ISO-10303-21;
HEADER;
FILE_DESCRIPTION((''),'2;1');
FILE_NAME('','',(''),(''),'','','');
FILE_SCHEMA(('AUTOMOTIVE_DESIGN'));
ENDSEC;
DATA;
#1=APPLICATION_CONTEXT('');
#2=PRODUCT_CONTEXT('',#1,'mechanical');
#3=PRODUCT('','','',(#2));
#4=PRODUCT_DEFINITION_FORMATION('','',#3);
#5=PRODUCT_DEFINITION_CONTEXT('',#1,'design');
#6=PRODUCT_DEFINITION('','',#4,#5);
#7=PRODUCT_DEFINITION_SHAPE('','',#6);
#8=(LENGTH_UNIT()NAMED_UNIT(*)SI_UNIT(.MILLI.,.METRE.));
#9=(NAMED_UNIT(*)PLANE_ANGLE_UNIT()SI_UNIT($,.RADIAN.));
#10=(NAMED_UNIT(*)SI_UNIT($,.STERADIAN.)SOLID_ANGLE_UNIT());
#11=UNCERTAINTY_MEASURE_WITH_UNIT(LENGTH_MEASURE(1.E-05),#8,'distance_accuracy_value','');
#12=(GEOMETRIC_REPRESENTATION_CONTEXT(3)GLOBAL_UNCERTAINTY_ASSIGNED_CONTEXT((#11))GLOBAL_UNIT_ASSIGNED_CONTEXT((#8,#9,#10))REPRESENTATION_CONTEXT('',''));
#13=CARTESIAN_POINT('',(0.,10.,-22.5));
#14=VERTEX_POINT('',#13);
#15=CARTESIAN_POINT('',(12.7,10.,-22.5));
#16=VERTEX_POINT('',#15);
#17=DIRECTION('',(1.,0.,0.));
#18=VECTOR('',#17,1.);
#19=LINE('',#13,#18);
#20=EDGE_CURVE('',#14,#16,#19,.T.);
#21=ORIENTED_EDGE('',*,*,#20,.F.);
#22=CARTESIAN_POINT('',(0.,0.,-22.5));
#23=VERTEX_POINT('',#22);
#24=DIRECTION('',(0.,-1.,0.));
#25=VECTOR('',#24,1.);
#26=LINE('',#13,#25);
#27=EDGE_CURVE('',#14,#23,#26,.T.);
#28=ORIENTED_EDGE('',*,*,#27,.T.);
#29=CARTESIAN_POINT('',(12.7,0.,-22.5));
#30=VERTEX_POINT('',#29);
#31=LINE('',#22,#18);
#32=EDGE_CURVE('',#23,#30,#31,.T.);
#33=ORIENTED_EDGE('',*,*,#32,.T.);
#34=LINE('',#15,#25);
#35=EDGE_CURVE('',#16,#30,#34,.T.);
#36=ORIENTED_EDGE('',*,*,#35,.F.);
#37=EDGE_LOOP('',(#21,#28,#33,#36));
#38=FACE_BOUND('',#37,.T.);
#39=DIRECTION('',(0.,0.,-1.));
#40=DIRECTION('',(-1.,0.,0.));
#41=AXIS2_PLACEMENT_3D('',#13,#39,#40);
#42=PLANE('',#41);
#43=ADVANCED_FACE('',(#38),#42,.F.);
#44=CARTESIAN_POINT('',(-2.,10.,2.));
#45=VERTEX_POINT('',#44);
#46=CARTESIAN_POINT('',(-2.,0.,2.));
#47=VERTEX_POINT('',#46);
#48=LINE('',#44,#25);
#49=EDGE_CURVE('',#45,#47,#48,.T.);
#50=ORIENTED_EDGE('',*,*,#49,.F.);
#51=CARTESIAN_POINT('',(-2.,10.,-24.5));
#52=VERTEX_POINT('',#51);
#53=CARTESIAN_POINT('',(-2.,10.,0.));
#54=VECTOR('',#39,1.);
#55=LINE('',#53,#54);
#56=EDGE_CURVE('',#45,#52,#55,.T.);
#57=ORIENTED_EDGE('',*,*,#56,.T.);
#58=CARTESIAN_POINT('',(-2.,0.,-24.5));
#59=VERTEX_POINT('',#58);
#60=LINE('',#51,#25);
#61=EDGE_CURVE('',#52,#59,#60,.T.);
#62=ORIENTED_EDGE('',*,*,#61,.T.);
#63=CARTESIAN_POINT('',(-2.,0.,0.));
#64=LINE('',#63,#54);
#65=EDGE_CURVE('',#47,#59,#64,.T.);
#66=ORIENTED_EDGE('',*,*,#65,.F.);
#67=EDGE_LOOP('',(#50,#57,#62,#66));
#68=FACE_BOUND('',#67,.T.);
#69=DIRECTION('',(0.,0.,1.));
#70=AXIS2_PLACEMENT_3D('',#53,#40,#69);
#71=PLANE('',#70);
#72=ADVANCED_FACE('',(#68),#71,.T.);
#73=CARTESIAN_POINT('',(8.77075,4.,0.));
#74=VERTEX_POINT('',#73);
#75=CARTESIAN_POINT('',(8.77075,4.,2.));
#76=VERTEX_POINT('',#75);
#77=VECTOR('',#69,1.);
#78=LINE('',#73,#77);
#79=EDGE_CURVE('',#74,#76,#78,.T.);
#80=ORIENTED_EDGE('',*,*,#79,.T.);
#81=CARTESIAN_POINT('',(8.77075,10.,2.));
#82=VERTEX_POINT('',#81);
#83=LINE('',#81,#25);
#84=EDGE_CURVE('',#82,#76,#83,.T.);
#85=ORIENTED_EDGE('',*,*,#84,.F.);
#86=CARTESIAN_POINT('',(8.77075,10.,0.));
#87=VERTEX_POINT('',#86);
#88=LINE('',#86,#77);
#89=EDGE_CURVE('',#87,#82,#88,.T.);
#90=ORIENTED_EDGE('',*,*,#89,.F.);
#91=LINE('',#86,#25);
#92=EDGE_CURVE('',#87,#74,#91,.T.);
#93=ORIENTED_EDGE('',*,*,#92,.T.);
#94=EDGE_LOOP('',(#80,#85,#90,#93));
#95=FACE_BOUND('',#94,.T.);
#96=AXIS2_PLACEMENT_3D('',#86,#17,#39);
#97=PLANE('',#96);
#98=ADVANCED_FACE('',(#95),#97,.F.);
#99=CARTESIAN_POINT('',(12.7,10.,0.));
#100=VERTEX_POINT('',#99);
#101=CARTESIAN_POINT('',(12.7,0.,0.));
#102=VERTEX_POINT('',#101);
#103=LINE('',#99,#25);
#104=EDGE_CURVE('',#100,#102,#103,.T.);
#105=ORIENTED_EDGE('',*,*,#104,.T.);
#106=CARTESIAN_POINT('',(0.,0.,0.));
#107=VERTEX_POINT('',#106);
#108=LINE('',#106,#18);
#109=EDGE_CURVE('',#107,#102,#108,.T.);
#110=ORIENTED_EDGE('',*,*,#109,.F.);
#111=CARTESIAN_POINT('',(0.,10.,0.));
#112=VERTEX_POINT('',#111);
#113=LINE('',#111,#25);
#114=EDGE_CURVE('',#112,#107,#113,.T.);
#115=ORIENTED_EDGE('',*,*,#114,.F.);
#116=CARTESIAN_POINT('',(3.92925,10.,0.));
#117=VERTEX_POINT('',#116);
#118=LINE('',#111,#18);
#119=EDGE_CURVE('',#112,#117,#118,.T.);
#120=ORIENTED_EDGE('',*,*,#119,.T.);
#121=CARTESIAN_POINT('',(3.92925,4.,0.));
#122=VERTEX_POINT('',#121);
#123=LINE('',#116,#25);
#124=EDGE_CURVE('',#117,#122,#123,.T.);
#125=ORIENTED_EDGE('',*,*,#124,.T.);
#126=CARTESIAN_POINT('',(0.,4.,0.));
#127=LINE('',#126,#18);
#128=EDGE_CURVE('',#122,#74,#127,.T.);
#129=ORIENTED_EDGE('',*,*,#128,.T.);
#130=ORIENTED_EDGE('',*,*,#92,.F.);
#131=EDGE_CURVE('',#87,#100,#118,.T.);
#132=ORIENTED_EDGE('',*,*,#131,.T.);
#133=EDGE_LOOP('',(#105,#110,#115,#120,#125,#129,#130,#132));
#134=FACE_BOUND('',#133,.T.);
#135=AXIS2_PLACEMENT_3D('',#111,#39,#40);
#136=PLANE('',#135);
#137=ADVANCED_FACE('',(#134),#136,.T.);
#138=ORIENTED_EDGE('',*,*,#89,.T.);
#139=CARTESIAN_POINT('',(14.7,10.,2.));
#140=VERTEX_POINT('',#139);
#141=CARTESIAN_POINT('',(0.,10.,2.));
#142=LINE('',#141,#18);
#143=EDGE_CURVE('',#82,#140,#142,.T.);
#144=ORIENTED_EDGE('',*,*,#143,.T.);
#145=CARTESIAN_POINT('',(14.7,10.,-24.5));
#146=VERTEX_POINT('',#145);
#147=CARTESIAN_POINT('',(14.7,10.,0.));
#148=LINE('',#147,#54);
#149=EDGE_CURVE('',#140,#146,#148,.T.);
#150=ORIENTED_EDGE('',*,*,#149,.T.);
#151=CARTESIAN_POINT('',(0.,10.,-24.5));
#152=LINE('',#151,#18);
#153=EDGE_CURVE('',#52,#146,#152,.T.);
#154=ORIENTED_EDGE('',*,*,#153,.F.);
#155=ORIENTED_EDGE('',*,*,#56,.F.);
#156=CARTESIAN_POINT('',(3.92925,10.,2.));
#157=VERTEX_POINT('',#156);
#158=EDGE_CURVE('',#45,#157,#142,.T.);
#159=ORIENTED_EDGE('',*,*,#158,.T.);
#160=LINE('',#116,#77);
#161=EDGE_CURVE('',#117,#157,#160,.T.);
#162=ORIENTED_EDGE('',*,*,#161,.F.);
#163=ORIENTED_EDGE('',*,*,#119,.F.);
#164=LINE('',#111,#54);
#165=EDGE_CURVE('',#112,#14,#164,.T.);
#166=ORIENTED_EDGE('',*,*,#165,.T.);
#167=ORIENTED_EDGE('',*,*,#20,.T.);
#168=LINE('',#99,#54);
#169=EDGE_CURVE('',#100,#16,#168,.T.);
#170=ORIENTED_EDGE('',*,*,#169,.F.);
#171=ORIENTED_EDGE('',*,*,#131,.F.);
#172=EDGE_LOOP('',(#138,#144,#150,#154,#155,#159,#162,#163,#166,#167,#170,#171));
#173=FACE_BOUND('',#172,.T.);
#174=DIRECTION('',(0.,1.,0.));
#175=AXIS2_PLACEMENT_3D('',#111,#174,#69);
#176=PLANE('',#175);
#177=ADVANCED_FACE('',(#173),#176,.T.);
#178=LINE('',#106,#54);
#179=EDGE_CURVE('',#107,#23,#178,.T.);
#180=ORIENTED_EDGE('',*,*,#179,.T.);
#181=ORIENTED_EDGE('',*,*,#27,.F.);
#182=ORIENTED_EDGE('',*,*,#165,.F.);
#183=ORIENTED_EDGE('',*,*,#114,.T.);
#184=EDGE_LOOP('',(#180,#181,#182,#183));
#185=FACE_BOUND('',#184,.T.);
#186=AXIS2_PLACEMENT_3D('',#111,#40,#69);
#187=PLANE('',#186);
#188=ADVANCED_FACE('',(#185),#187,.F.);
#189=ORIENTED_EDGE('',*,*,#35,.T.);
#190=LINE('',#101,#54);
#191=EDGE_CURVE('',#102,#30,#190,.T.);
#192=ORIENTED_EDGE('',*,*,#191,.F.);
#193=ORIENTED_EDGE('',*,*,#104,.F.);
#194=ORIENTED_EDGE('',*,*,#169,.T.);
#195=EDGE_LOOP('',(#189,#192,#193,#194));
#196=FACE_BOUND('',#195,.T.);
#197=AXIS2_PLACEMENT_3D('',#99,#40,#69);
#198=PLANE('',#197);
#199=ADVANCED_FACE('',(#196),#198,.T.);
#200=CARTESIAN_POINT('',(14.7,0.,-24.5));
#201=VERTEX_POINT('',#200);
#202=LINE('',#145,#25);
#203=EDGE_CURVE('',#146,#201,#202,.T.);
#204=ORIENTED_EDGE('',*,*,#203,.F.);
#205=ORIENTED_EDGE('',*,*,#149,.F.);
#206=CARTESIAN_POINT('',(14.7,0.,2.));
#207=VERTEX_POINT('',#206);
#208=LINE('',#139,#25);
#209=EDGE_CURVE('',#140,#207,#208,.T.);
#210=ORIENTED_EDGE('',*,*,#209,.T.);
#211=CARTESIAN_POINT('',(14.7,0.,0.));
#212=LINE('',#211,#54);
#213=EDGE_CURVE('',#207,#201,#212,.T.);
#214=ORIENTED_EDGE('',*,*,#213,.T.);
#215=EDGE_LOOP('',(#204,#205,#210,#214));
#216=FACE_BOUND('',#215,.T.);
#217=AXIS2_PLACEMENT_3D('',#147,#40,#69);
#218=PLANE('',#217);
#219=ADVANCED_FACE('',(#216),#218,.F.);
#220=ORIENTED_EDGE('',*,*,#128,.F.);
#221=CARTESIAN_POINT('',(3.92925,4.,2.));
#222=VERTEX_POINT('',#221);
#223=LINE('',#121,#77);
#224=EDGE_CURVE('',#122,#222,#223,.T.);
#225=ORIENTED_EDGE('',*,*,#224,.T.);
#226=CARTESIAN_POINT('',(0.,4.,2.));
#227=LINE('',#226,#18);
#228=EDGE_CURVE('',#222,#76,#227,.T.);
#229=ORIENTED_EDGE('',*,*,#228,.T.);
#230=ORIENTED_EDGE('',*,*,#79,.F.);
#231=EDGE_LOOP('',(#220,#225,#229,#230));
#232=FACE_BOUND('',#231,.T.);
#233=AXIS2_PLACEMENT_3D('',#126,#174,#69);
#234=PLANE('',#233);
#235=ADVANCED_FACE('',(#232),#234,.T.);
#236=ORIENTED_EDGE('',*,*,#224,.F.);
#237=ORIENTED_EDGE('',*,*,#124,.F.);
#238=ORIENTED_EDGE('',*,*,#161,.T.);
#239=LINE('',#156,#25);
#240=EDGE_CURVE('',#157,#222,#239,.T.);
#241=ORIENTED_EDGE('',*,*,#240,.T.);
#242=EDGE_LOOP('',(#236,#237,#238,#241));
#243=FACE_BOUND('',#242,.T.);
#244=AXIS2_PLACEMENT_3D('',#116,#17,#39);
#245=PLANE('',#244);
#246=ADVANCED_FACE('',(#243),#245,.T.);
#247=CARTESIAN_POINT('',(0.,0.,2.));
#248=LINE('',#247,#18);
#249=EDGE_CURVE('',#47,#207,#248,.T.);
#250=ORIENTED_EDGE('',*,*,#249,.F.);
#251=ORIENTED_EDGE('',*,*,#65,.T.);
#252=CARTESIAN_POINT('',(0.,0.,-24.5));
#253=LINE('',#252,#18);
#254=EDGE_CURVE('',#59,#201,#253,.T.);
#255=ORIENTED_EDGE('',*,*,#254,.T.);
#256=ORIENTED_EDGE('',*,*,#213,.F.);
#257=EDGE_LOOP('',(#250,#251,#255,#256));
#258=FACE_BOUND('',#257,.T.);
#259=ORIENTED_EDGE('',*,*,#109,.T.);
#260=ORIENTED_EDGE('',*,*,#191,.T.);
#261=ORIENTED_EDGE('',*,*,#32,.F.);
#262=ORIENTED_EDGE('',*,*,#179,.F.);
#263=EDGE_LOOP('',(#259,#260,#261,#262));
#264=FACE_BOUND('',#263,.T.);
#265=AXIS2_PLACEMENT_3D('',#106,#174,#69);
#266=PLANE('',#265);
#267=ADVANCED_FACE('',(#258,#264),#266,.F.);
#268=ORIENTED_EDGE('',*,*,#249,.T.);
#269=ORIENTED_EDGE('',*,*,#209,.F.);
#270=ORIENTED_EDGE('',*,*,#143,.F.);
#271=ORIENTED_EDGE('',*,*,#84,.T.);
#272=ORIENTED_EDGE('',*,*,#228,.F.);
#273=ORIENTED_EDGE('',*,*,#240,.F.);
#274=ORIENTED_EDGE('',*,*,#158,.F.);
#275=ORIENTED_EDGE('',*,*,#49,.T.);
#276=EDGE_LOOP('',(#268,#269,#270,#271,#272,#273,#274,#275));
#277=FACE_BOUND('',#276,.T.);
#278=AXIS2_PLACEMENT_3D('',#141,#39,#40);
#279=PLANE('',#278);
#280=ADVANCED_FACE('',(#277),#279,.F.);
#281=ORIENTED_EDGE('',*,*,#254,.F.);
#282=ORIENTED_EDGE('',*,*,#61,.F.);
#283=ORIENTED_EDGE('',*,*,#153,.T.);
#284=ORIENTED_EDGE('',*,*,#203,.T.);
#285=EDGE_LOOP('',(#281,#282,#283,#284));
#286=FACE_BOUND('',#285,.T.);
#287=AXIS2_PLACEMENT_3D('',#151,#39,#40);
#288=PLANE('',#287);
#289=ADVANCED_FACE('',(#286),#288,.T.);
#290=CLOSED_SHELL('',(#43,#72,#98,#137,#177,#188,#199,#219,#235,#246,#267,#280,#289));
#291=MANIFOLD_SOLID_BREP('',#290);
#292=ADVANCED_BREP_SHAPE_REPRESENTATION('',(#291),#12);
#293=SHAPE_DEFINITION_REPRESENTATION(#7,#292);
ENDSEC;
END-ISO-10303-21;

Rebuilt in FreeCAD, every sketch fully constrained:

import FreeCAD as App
import Part
import Sketcher

doc = App.newDocument("Part")
body = doc.addObject("PartDesign::Body", "Body")

sketch1 = body.newObject("Sketcher::SketchObject", "Sketch")
sketch1.AttachmentSupport = (doc.getObject("XZ_Plane"), [""])
sketch1.MapMode = "FlatFace"
sketch1.addGeometry(Part.LineSegment(App.Vector(3.9, 0, 0), App.Vector(0, 0, 0)), False)
sketch1.addGeometry(Part.LineSegment(App.Vector(0, 0, 0), App.Vector(0, -22.5, 0)), False)
sketch1.addGeometry(Part.LineSegment(App.Vector(0, -22.5, 0), App.Vector(12.7, -22.5, 0)), False)
sketch1.addGeometry(Part.LineSegment(App.Vector(12.7, -22.5, 0), App.Vector(12.7, 0, 0)), False)
sketch1.addGeometry(Part.LineSegment(App.Vector(12.7, 0, 0), App.Vector(8.8, 0, 0)), False)
sketch1.addGeometry(Part.LineSegment(App.Vector(8.8, 0, 0), App.Vector(8.8, 2, 0)), False)
sketch1.addGeometry(Part.LineSegment(App.Vector(8.8, 2, 0), App.Vector(14.7, 2, 0)), False)
sketch1.addGeometry(Part.LineSegment(App.Vector(14.7, 2, 0), App.Vector(14.7, -24.5, 0)), False)
sketch1.addGeometry(Part.LineSegment(App.Vector(14.7, -24.5, 0), App.Vector(-2, -24.5, 0)), False)
sketch1.addGeometry(Part.LineSegment(App.Vector(-2, -24.5, 0), App.Vector(-2, 2, 0)), False)
sketch1.addGeometry(Part.LineSegment(App.Vector(-2, 2, 0), App.Vector(3.9, 2, 0)), False)
sketch1.addGeometry(Part.LineSegment(App.Vector(3.9, 2, 0), App.Vector(3.9, 0, 0)), False)
sketch1.addConstraint(Sketcher.Constraint("Coincident", 0, 2, 1, 1))
sketch1.addConstraint(Sketcher.Constraint("Coincident", 1, 2, 2, 1))
sketch1.addConstraint(Sketcher.Constraint("Coincident", 2, 2, 3, 1))
sketch1.addConstraint(Sketcher.Constraint("Coincident", 3, 2, 4, 1))
sketch1.addConstraint(Sketcher.Constraint("Coincident", 4, 2, 5, 1))
sketch1.addConstraint(Sketcher.Constraint("Coincident", 5, 2, 6, 1))
sketch1.addConstraint(Sketcher.Constraint("Coincident", 6, 2, 7, 1))
sketch1.addConstraint(Sketcher.Constraint("Coincident", 7, 2, 8, 1))
sketch1.addConstraint(Sketcher.Constraint("Coincident", 8, 2, 9, 1))
sketch1.addConstraint(Sketcher.Constraint("Coincident", 9, 2, 10, 1))
sketch1.addConstraint(Sketcher.Constraint("Coincident", 10, 2, 11, 1))
sketch1.addConstraint(Sketcher.Constraint("Coincident", 11, 2, 0, 1))
sketch1.addConstraint(Sketcher.Constraint("Horizontal", 0))
sketch1.addConstraint(Sketcher.Constraint("Vertical", 1))
sketch1.addConstraint(Sketcher.Constraint("Horizontal", 2))
sketch1.addConstraint(Sketcher.Constraint("Vertical", 3))
sketch1.addConstraint(Sketcher.Constraint("Horizontal", 4))
sketch1.addConstraint(Sketcher.Constraint("Vertical", 5))
sketch1.addConstraint(Sketcher.Constraint("Horizontal", 6))
sketch1.addConstraint(Sketcher.Constraint("Vertical", 7))
sketch1.addConstraint(Sketcher.Constraint("Horizontal", 8))
sketch1.addConstraint(Sketcher.Constraint("Vertical", 9))
sketch1.addConstraint(Sketcher.Constraint("Horizontal", 10))
sketch1.addConstraint(Sketcher.Constraint("Vertical", 11))
sketch1.addConstraint(Sketcher.Constraint("Coincident", 0, 2, -1, 1))
sketch1.addConstraint(Sketcher.Constraint("PointOnObject", 3, 2, -1))
sketch1.addConstraint(Sketcher.Constraint("Horizontal", 6, 2, 9, 2))
sketch1.addConstraint(Sketcher.Constraint("Equal", 0, 4))
sketch1.addConstraint(Sketcher.Constraint("Equal", 6, 10))
sketch1.addConstraint(Sketcher.Constraint("DistanceY", 5, 1, 5, 2, 2.0))
sketch1.addConstraint(Sketcher.Constraint("DistanceX", 2, 1, 2, 2, 12.7))
sketch1.addConstraint(Sketcher.Constraint("DistanceX", 8, 2, 8, 1, 16.7))
sketch1.addConstraint(Sketcher.Constraint("DistanceY", 1, 2, 1, 1, 22.5))
sketch1.addConstraint(Sketcher.Constraint("DistanceY", 7, 2, 7, 1, 26.5))
sketch1.addConstraint(Sketcher.Constraint("DistanceX", 0, 2, 0, 1, 3.92925))
pad1 = body.newObject("PartDesign::Pad", "Pad")
pad1.Profile = sketch1
pad1.Length = 10
pad1.Reversed = True

sketch2 = body.newObject("Sketcher::SketchObject", "Sketch001")
sketch2.AttachmentSupport = (doc.getObject("XZ_Plane"), [""])
sketch2.MapMode = "FlatFace"
sketch2.addGeometry(Part.LineSegment(App.Vector(3.9, 0, 0), App.Vector(3.9, 2, 0)), False)
sketch2.addGeometry(Part.LineSegment(App.Vector(3.9, 2, 0), App.Vector(8.8, 2, 0)), False)
sketch2.addGeometry(Part.LineSegment(App.Vector(8.8, 2, 0), App.Vector(8.8, 0, 0)), False)
sketch2.addGeometry(Part.LineSegment(App.Vector(8.8, 0, 0), App.Vector(3.9, 0, 0)), False)
sketch2.addConstraint(Sketcher.Constraint("Coincident", 0, 2, 1, 1))
sketch2.addConstraint(Sketcher.Constraint("Coincident", 1, 2, 2, 1))
sketch2.addConstraint(Sketcher.Constraint("Coincident", 2, 2, 3, 1))
sketch2.addConstraint(Sketcher.Constraint("Coincident", 3, 2, 0, 1))
sketch2.addConstraint(Sketcher.Constraint("Vertical", 0))
sketch2.addConstraint(Sketcher.Constraint("Horizontal", 1))
sketch2.addConstraint(Sketcher.Constraint("Vertical", 2))
sketch2.addConstraint(Sketcher.Constraint("Horizontal", 3))
sketch2.addConstraint(Sketcher.Constraint("PointOnObject", 2, 2, -1))
sketch2.addConstraint(Sketcher.Constraint("DistanceY", 0, 1, 0, 2, 2.0))
sketch2.addConstraint(Sketcher.Constraint("DistanceX", 1, 1, 1, 2, 4.8415))
sketch2.addConstraint(Sketcher.Constraint("DistanceX", -1, 1, 0, 2, 3.92925))
pad2 = body.newObject("PartDesign::Pad", "Pad001")
pad2.Profile = sketch2
pad2.Length = 4
pad2.Reversed = True

doc.recompute()
